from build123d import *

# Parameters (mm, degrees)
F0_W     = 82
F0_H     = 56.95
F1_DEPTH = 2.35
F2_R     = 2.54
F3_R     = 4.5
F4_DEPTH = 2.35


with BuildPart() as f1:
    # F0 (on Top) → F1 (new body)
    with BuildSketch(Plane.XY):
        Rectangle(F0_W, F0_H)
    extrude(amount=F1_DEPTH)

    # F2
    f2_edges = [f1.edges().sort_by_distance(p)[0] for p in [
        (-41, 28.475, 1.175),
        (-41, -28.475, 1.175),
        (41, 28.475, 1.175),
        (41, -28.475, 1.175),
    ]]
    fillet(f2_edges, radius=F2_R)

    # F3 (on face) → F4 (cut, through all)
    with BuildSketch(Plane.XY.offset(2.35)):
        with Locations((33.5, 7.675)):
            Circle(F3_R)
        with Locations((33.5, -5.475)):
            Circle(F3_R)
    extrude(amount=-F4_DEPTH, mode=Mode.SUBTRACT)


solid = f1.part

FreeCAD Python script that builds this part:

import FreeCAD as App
import Part
import Sketcher
from FreeCAD import Vector


def edges_at(feature, points):
    """Names of the edges that pass closest to the given points."""
    edges = feature.Shape.Edges
    near = lambda p: min(range(len(edges)), key=lambda i: edges[i].distToShape(Part.Vertex(*p))[0])
    return sorted({f"Edge{near(p) + 1}" for p in points})


def add_polygon(sketch, points):
    """Adds a closed chain of lines whose ends are joined by coincident constraints."""
    first, n = sketch.GeometryCount, len(points)
    for a, b in zip(points, points[1:] + points[:1]):
        sketch.addGeometry(Part.LineSegment(App.Vector(*a, 0), App.Vector(*b, 0)), False)
    for i in range(n):
        sketch.addConstraint(Sketcher.Constraint("Coincident", first + i, 2, first + (i + 1) % n, 1))

doc = App.newDocument("Part")
body = doc.addObject("PartDesign::Body", "Body")

# Sketch on XY plane
sketch1 = body.newObject("Sketcher::SketchObject", "Sketch")
sketch1.AttachmentSupport = (doc.getObject("XY_Plane"), [""])
sketch1.MapMode = "FlatFace"
add_polygon(sketch1, [(-41, 28.475), (-41, -28.475), (41, -28.475), (41, 28.475)])  # lines 0-3
sketch1.addConstraint([
    Sketcher.Constraint("Vertical", 0),
    Sketcher.Constraint("Horizontal", 1),
    Sketcher.Constraint("Vertical", 2),
    Sketcher.Constraint("Horizontal", 3),
    Sketcher.Constraint("Symmetric", 0, 2, 2, 2, -1, 1),
    Sketcher.Constraint("DistanceX", 1, 1, 1, 2, 82.0),
    Sketcher.Constraint("DistanceY", 0, 2, 0, 1, 56.95),
])
pad1 = body.newObject("PartDesign::Pad", "Pad")
pad1.Profile = sketch1
pad1.Length = 2.35
doc.recompute()

fillet = body.newObject("PartDesign::Fillet", "Fillet")
fillet.Base = (pad1, edges_at(pad1, [
    (-41, 28.475, 1.175),
    (-41, -28.475, 1.175),
    (41, 28.475, 1.175),
    (41, -28.475, 1.175),
]))
fillet.Radius = 2.54

# Sketch on XY plane
sketch2 = body.newObject("Sketcher::SketchObject", "Sketch001")
sketch2.AttachmentSupport = (doc.getObject("XY_Plane"), [""])
sketch2.MapMode = "FlatFace"
sketch2.AttachmentOffset = App.Placement(Vector(0, 0, 2.35), App.Rotation())
sketch2.addGeometry([
    Part.Circle(Vector(33.5, 7.675, 0), Vector(0, 0, 1), 4.5),
    Part.Circle(Vector(33.5, -5.475, 0), Vector(0, 0, 1), 4.5),
], False)
sketch2.addConstraint([
    Sketcher.Constraint("Equal", 0, 1),
    Sketcher.Constraint("Vertical", 0, 3, 1, 3),
    Sketcher.Constraint("Diameter", 0, 9.0),
    Sketcher.Constraint("DistanceX", -1, 1, 0, 3, 33.5),
    Sketcher.Constraint("DistanceY", 1, 3, 0, 3, 13.15),
    Sketcher.Constraint("DistanceY", -1, 1, 0, 3, 7.675),
])
pocket1 = body.newObject("PartDesign::Pocket", "Pocket")
pocket1.Profile = sketch2
pocket1.Type = "ThroughAll"

doc.recompute()
